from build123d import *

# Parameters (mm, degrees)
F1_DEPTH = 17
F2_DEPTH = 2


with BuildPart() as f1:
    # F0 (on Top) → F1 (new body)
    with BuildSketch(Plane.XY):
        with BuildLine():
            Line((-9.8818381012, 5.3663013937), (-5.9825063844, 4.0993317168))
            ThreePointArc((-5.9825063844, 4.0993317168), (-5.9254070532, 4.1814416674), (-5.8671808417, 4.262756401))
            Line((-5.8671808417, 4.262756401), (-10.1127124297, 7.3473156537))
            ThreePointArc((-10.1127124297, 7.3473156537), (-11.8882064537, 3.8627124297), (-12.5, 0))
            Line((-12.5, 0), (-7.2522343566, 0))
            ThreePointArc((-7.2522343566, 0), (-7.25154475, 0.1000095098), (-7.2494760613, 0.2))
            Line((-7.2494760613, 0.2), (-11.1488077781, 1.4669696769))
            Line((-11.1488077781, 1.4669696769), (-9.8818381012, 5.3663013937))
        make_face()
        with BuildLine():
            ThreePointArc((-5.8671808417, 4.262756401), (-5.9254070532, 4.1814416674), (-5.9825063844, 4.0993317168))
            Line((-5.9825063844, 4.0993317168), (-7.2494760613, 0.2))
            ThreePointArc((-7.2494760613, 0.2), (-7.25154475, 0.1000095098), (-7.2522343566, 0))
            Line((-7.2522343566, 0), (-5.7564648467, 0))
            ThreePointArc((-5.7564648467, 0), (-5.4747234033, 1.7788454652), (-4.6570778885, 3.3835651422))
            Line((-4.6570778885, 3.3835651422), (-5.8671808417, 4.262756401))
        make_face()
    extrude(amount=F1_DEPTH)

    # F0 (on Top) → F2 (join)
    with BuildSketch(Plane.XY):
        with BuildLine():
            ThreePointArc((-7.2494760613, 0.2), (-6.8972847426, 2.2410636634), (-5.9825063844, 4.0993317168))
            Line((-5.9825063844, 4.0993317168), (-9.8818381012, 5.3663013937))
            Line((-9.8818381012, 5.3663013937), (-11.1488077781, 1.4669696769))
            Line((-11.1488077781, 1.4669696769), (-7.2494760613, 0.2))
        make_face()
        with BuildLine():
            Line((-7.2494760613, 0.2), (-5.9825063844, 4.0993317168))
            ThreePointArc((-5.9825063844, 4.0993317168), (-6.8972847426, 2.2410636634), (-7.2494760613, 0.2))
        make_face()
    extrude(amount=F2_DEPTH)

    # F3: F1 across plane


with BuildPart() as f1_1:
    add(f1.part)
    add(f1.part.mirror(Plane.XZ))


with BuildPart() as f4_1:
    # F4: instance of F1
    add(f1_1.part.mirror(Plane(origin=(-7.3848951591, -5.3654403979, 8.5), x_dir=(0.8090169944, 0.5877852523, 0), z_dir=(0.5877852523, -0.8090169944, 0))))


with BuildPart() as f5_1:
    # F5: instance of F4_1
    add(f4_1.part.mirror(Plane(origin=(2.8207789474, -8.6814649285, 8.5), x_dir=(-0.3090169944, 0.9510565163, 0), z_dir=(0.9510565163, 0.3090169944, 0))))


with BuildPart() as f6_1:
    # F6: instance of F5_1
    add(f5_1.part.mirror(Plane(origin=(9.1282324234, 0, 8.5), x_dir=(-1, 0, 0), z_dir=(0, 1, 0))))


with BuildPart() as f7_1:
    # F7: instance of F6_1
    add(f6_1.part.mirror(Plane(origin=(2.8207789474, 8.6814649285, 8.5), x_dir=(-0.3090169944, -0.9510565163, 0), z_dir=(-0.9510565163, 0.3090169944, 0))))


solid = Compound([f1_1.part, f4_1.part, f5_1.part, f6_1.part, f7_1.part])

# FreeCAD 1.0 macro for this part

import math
import FreeCAD as App
import Part
import Sketcher
Q = App.Units.Quantity

doc = App.newDocument("Part")
body = doc.addObject("PartDesign::Body", "Body")

sketch1 = doc.addObject("Sketcher::SketchObject", "Sketch")
body.addObject(sketch1)
sketch1.AttachmentSupport = (doc.XY_Plane, [""])
sketch1.MapMode = "FlatFace"
sketch1.addGeometry([
    Part.LineSegment(App.Vector(-5.9, 4.3, 0), App.Vector(-10.1, 7.3, 0)),
    Part.ArcOfCircle(Part.Circle(App.Vector(0, 0, 0), App.Vector(0, 0, 1), 12.5), math.radians(144), math.radians(180)),
    Part.LineSegment(App.Vector(-12.5, 0, 0), App.Vector(-5.8, 0, 0)),
    Part.ArcOfCircle(Part.Circle(App.Vector(0, 0, 0), App.Vector(0, 0, 1), 5.8), math.radians(144), math.radians(180)),
    Part.LineSegment(App.Vector(-4.7, 3.4, 0), App.Vector(-5.9, 4.3, 0)),
    Part.LineSegment(App.Vector(-9.9, 5.4, 0), App.Vector(-6, 4.1, 0)),
    Part.LineSegment(App.Vector(-6, 4.1, 0), App.Vector(-7.2, 0.2, 0)),
    Part.LineSegment(App.Vector(-7.2, 0.2, 0), App.Vector(-11.1, 1.5, 0)),
    Part.LineSegment(App.Vector(-11.1, 1.5, 0), App.Vector(-9.9, 5.4, 0)),
], False)
sketch1.addConstraint([
    Sketcher.Constraint("Coincident", 0, 2, 1, 1),
    Sketcher.Constraint("Coincident", 1, 2, 2, 1),
    Sketcher.Constraint("Coincident", 2, 2, 3, 2),
    Sketcher.Constraint("Coincident", 3, 1, 4, 1),
    Sketcher.Constraint("Coincident", 4, 2, 0, 1),
    Sketcher.Constraint("Coincident", 5, 2, 6, 1),
    Sketcher.Constraint("Coincident", 6, 2, 7, 1),
    Sketcher.Constraint("Coincident", 7, 2, 8, 1),
    Sketcher.Constraint("Coincident", 8, 2, 5, 1),
    Sketcher.Constraint("Horizontal", 2),
    Sketcher.Constraint("Coincident", 1, 3, -1, 1),
    Sketcher.Constraint("Coincident", 3, 3, -1, 1),
    Sketcher.Constraint("PointOnObject", 1, 2, -1),
    Sketcher.Constraint("Parallel", 0, 4),
    Sketcher.Constraint("Perpendicular", 5, 6),
    Sketcher.Constraint("Perpendicular", 6, 7),
    Sketcher.Constraint("Perpendicular", 7, 8),
    Sketcher.Constraint("Equal", 5, 6),
    Sketcher.Constraint("Radius", 1, 12.5),
    Sketcher.Constraint("Angle", 0, Q("144 deg")),
    Sketcher.Constraint("Angle", 5, Q("-18 deg")),
    Sketcher.Constraint("Distance", 5, 4.1),
    Sketcher.Constraint("DistanceY", -1, 1, 6, 2, 0.2),
    Sketcher.Constraint("Radius", 3, 5.756465),
    Sketcher.Constraint("DistanceX", 6, 2, 3, 1, 2.592398),
    Sketcher.Constraint("Distance", 4, 1.49577),
    Sketcher.Constraint("DistanceX", 4, 2, -1, 1, 5.867181),
])
pad1 = doc.addObject("PartDesign::Pad", "Pad")
body.addObject(pad1)
pad1.Profile = sketch1
pad1.Length = 17

sketch2 = doc.addObject("Sketcher::SketchObject", "Sketch001")
body.addObject(sketch2)
sketch2.AttachmentSupport = (doc.XY_Plane, [""])
sketch2.MapMode = "FlatFace"
sketch2.addGeometry([
    Part.LineSegment(App.Vector(-6, 4.1, 0), App.Vector(-9.9, 5.4, 0)),
    Part.LineSegment(App.Vector(-9.9, 5.4, 0), App.Vector(-11.1, 1.5, 0)),
    Part.LineSegment(App.Vector(-11.1, 1.5, 0), App.Vector(-7.2, 0.2, 0)),
    Part.LineSegment(App.Vector(-7.2, 0.2, 0), App.Vector(-6, 4.1, 0)),
], False)
sketch2.addConstraint([
    Sketcher.Constraint("Coincident", 0, 2, 1, 1),
    Sketcher.Constraint("Coincident", 1, 2, 2, 1),
    Sketcher.Constraint("Coincident", 2, 2, 3, 1),
    Sketcher.Constraint("Coincident", 3, 2, 0, 1),
    Sketcher.Constraint("Perpendicular", 0, 1),
    Sketcher.Constraint("Perpendicular", 1, 2),
    Sketcher.Constraint("Perpendicular", 2, 3),
    Sketcher.Constraint("Equal", 0, 1),
    Sketcher.Constraint("Angle", 0, Q("162 deg")),
    Sketcher.Constraint("Distance", 0, 4.1),
    Sketcher.Constraint("DistanceY", -1, 1, 2, 2, 0.2),
    Sketcher.Constraint("DistanceX", 0, 2, -1, 1, 9.881838),
])
pad2 = doc.addObject("PartDesign::Pad", "Pad001")
body.addObject(pad2)
pad2.Profile = sketch2
pad2.Length = 2
body2 = doc.addObject("PartDesign::Body", "Body001")
doc.recompute()

body2.BaseFeature = body
doc.recompute()

mirroring = doc.addObject("Part::Mirroring", "Mirroring")
mirroring.Source = body
mirroring.Base = App.Vector(0, 0, 0)
mirroring.Normal = App.Vector(0, -1, 0)
body3 = doc.addObject("PartDesign::Body", "Body002")
body3.BaseFeature = mirroring
boolean = doc.addObject("PartDesign::Boolean", "Boolean")
body2.addObject(boolean)
boolean.Type = "Fuse"
boolean.addObjects([body3])
doc.recompute()
body4 = doc.addObject("PartDesign::Body", "Body003")
doc.recompute()

mirroring2 = doc.addObject("Part::Mirroring", "Mirroring001")
mirroring2.Source = body2
mirroring2.Base = App.Vector(-7.384895, -5.36544, 8.5)
mirroring2.Normal = App.Vector(0.587785252, -0.809016994, 0)
body4.BaseFeature = mirroring2
doc.recompute()
body5 = doc.addObject("PartDesign::Body", "Body004")
doc.recompute()

mirroring3 = doc.addObject("Part::Mirroring", "Mirroring002")
mirroring3.Source = body4
mirroring3.Base = App.Vector(2.820779, -8.681465, 8.5)
mirroring3.Normal = App.Vector(0.951056516, 0.309016994, 0)
body5.BaseFeature = mirroring3
doc.recompute()
body6 = doc.addObject("PartDesign::Body", "Body005")
doc.recompute()

mirroring4 = doc.addObject("Part::Mirroring", "Mirroring003")
mirroring4.Source = body5
mirroring4.Base = App.Vector(9.128232, 0, 8.5)
mirroring4.Normal = App.Vector(0, 1, 0)
body6.BaseFeature = mirroring4
doc.recompute()
body7 = doc.addObject("PartDesign::Body", "Body006")
doc.recompute()

mirroring5 = doc.addObject("Part::Mirroring", "Mirroring004")
mirroring5.Source = body6
mirroring5.Base = App.Vector(2.820779, 8.681465, 8.5)
mirroring5.Normal = App.Vector(-0.951056516, 0.309016994, 0)
body7.BaseFeature = mirroring5
doc.recompute()
mirroring.Visibility = False
mirroring2.Visibility = False
mirroring3.Visibility = False
mirroring4.Visibility = False
mirroring5.Visibility = False

doc.recompute()
